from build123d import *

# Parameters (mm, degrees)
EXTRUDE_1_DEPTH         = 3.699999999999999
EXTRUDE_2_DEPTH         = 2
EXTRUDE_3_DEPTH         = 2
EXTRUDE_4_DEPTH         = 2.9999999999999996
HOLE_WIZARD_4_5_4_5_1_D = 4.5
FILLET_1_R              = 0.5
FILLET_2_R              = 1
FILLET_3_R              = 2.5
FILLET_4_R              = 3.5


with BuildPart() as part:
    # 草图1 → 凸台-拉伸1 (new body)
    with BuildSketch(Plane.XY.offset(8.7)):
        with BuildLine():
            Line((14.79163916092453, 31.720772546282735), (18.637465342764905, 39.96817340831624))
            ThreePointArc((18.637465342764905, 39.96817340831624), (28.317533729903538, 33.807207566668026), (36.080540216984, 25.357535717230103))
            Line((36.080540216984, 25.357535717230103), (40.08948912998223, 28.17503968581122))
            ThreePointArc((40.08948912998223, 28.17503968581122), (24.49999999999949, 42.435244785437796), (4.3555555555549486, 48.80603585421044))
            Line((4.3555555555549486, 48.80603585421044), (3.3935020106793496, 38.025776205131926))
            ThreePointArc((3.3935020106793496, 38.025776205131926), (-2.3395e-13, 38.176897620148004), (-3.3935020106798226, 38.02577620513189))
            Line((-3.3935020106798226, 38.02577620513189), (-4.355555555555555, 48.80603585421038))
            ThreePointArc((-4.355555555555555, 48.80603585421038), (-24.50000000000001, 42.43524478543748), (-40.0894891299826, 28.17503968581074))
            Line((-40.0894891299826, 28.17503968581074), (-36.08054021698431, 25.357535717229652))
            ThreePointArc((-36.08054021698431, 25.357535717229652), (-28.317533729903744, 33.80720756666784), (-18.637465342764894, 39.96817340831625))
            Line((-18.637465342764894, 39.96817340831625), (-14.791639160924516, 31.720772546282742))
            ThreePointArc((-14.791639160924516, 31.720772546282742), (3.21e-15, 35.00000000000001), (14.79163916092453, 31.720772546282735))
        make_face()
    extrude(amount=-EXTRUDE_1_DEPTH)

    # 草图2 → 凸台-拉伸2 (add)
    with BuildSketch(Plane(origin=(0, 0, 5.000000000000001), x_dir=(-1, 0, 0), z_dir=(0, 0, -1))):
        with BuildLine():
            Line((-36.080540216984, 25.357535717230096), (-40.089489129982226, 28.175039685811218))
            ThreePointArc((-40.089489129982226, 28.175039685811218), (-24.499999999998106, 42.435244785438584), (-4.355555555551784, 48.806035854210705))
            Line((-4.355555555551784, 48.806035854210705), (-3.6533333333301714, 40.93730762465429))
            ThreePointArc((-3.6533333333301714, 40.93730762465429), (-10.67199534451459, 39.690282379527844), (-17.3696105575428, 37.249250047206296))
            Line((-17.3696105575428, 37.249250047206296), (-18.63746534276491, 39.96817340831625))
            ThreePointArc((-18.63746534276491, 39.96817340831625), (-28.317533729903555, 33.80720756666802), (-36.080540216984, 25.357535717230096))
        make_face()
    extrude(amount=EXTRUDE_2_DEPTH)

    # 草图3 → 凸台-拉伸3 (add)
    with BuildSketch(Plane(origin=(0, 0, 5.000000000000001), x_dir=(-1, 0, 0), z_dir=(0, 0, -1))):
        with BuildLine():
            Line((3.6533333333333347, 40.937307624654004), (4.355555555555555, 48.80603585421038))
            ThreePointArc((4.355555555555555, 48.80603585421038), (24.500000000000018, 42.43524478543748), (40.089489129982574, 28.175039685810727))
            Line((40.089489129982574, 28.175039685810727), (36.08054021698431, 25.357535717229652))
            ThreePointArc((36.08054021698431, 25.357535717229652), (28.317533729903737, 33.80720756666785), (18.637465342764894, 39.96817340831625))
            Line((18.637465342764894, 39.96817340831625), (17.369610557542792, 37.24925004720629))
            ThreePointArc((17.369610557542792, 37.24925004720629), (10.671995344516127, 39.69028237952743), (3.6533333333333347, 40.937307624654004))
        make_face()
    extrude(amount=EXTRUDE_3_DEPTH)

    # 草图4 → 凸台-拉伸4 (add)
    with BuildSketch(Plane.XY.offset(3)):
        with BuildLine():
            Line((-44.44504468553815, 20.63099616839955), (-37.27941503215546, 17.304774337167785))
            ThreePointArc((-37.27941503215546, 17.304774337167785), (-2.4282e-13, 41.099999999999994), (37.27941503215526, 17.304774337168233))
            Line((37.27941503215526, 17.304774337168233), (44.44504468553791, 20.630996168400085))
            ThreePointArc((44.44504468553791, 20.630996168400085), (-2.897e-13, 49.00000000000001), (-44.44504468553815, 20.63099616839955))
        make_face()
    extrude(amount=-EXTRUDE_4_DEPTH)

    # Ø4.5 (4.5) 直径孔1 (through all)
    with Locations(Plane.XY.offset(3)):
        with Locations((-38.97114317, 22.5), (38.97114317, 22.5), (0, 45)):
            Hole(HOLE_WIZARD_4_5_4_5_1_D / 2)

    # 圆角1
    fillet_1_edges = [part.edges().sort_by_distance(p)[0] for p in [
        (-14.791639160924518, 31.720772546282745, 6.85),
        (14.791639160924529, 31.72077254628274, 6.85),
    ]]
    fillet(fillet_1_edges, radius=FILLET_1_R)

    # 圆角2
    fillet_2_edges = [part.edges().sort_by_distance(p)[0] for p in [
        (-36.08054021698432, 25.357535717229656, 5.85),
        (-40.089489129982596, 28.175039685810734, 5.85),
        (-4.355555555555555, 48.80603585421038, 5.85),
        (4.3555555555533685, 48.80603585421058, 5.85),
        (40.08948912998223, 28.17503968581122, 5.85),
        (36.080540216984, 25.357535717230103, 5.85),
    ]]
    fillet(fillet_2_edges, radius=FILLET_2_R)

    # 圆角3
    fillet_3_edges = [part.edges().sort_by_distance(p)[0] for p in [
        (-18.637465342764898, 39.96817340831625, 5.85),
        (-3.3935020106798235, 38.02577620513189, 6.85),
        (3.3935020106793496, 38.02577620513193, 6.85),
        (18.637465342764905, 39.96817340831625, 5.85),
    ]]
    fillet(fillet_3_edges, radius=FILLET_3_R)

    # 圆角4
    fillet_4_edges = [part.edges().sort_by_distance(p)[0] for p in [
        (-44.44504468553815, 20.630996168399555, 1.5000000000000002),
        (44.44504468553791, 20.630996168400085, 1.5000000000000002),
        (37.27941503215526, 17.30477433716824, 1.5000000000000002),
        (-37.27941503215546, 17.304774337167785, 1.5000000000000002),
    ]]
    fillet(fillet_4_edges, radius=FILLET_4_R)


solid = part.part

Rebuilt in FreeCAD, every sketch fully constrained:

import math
import FreeCAD as App
import Part
import Sketcher
from FreeCAD import Vector
Q = App.Units.Quantity


def edges_at(feature, points):
    """Names of the edges that pass closest to the given points."""
    edges = feature.Shape.Edges
    near = lambda p: min(range(len(edges)), key=lambda i: edges[i].distToShape(Part.Vertex(*p))[0])
    return sorted({f"Edge{near(p) + 1}" for p in points})

doc = App.newDocument("Part")
body = doc.addObject("PartDesign::Body", "Body")

# Sketch on XY plane
sketch1 = body.newObject("Sketcher::SketchObject", "Sketch")
sketch1.AttachmentSupport = (doc.getObject("XY_Plane"), [""])
sketch1.MapMode = "FlatFace"
sketch1.AttachmentOffset = App.Placement(Vector(0, 0, 8.7), App.Rotation())
sketch1.addGeometry([
    Part.LineSegment(Vector(14.791639, 31.720773, 0), Vector(18.637465, 39.968173, 0)),  # 0
    Part.ArcOfCircle(Part.Circle(Vector(0, 0, 0), Vector(0, 0, 1), 44.1), math.radians(35.099689), math.radians(65)),  # 1
    Part.LineSegment(Vector(36.08054, 25.357536, 0), Vector(40.089489, 28.17504, 0)),  # 2
    Part.ArcOfCircle(Part.Circle(Vector(0, 0, 0), Vector(0, 0, 1), 49), math.radians(35.099689), math.radians(84.900311)),  # 3
    Part.LineSegment(Vector(4.355556, 48.806036, 0), Vector(3.393502, 38.025776, 0)),  # 4
    Part.ArcOfCircle(Part.Circle(Vector(0, 0, 0), Vector(0, 0, 1), 38.176898), math.radians(84.900311), math.radians(95.099689)),  # 5
    Part.LineSegment(Vector(-3.393502, 38.025776, 0), Vector(-4.355556, 48.806036, 0)),  # 6
    Part.ArcOfCircle(Part.Circle(Vector(0, 0, 0), Vector(0, 0, 1), 49), math.radians(95.099689), math.radians(144.900311)),  # 7
    Part.LineSegment(Vector(-40.089489, 28.17504, 0), Vector(-36.08054, 25.357536, 0)),  # 8
    Part.ArcOfCircle(Part.Circle(Vector(0, 0, 0), Vector(0, 0, 1), 44.1), math.radians(115), math.radians(144.900311)),  # 9
    Part.LineSegment(Vector(-18.637465, 39.968173, 0), Vector(-14.791639, 31.720773, 0)),  # 10
    Part.ArcOfCircle(Part.Circle(Vector(0, 0, 0), Vector(0, 0, 1), 35), math.radians(65), math.radians(115)),  # 11
], False)
sketch1.addConstraint([
    Sketcher.Constraint("Coincident", 0, 2, 1, 2),
    Sketcher.Constraint("Coincident", 1, 1, 2, 1),
    Sketcher.Constraint("Coincident", 2, 2, 3, 1),
    Sketcher.Constraint("Coincident", 3, 2, 4, 1),
    Sketcher.Constraint("Coincident", 4, 2, 5, 1),
    Sketcher.Constraint("Coincident", 5, 2, 6, 1),
    Sketcher.Constraint("Coincident", 6, 2, 7, 1),
    Sketcher.Constraint("Coincident", 7, 2, 8, 1),
    Sketcher.Constraint("Coincident", 8, 2, 9, 2),
    Sketcher.Constraint("Coincident", 9, 1, 10, 1),
    Sketcher.Constraint("Coincident", 10, 2, 11, 2),
    Sketcher.Constraint("Coincident", 11, 1, 0, 1),
    Sketcher.Constraint("Coincident", 1, 3, -1, 1),
    Sketcher.Constraint("Coincident", 3, 3, -1, 1),
    Sketcher.Constraint("Coincident", 5, 3, -1, 1),
    Sketcher.Constraint("Coincident", 7, 3, -1, 1),
    Sketcher.Constraint("Coincident", 9, 3, -1, 1),
    Sketcher.Constraint("Coincident", 11, 3, -1, 1),
    Sketcher.Constraint("Equal", 3, 7),
    Sketcher.Constraint("Equal", 1, 9),
    Sketcher.Constraint("Horizontal", 4, 2, 5, 2),
    Sketcher.Constraint("Horizontal", 3, 2, 6, 2),
    Sketcher.Constraint("Horizontal", 2, 2, 7, 2),
    Sketcher.Constraint("Horizontal", 1, 1, 8, 2),
    Sketcher.Constraint("Horizontal", 0, 2, 9, 1),
    Sketcher.Constraint("Horizontal", 10, 2, 11, 1),
    Sketcher.Constraint("Radius", 3, 49.0),
    Sketcher.Constraint("Radius", 11, 35.0),
    Sketcher.Constraint("Radius", 1, 44.1),
    Sketcher.Constraint("Angle", 0, Q("65 deg")),
    Sketcher.Constraint("Radius", 5, 38.176898),
    Sketcher.Constraint("DistanceY", 1, 1, 3, 2, 23.4485),
    Sketcher.Constraint("DistanceX", 8, 2, 10, 2, 21.288901),
    Sketcher.Constraint("DistanceX", -1, 1, 2, 2, 40.089489),
    Sketcher.Constraint("DistanceX", 8, 2, -1, 1, 36.08054),
    Sketcher.Constraint("DistanceY", 4, 2, 3, 2, 10.78026),
])
pad1 = body.newObject("PartDesign::Pad", "Pad")
pad1.Profile = sketch1
pad1.Length = 3.7
pad1.Reversed = True

# Sketch on XY plane
sketch2 = body.newObject("Sketcher::SketchObject", "Sketch001")
sketch2.AttachmentSupport = (doc.getObject("XY_Plane"), [""])
sketch2.MapMode = "FlatFace"
sketch2.AttachmentOffset = App.Placement(Vector(0, 0, 5), App.Rotation())
sketch2.addGeometry([
    Part.LineSegment(Vector(40.089489, 28.17504, 0), Vector(36.08054, 25.357536, 0)),  # 0
    Part.ArcOfCircle(Part.Circle(Vector(0, 0, 0), Vector(0, 0, 1), 44.1), math.radians(35.099689), math.radians(65)),  # 1
    Part.LineSegment(Vector(18.637465, 39.968173, 0), Vector(17.369611, 37.24925, 0)),  # 2
    Part.ArcOfCircle(Part.Circle(Vector(0, 0, 0), Vector(0, 0, 1), 41.1), math.radians(65), math.radians(84.900311)),  # 3
    Part.LineSegment(Vector(3.653333, 40.937308, 0), Vector(4.355556, 48.806036, 0)),  # 4
    Part.ArcOfCircle(Part.Circle(Vector(0, 0, 0), Vector(0, 0, 1), 49), math.radians(35.099689), math.radians(84.900311)),  # 5
], False)
sketch2.addConstraint([
    Sketcher.Constraint("Coincident", 0, 2, 1, 1),
    Sketcher.Constraint("Coincident", 1, 2, 2, 1),
    Sketcher.Constraint("Coincident", 2, 2, 3, 1),
    Sketcher.Constraint("Coincident", 3, 2, 4, 1),
    Sketcher.Constraint("Coincident", 4, 2, 5, 2),
    Sketcher.Constraint("Coincident", 5, 1, 0, 1),
    Sketcher.Constraint("Coincident", 1, 3, -1, 1),
    Sketcher.Constraint("Coincident", 3, 3, -1, 1),
    Sketcher.Constraint("Coincident", 5, 3, -1, 1),
    Sketcher.Constraint("Radius", 5, 49.0),
    Sketcher.Constraint("Radius", 1, 44.1),
    Sketcher.Constraint("Radius", 3, 41.1),
    Sketcher.Constraint("Angle", 2, Q("-115 deg")),
    Sketcher.Constraint("DistanceY", 0, 2, 4, 2, 23.4485),
    Sketcher.Constraint("DistanceX", -1, 1, 0, 2, 36.08054),
    Sketcher.Constraint("DistanceX", -1, 1, 2, 2, 17.369611),
    Sketcher.Constraint("DistanceX", -1, 1, 5, 1, 40.089489),
    Sketcher.Constraint("DistanceY", 0, 2, 3, 2, 15.579772),
])
pad2 = body.newObject("PartDesign::Pad", "Pad001")
pad2.Profile = sketch2
pad2.Length = 2
pad2.Reversed = True

# Sketch on XY plane
sketch3 = body.newObject("Sketcher::SketchObject", "Sketch002")
sketch3.AttachmentSupport = (doc.getObject("XY_Plane"), [""])
sketch3.MapMode = "FlatFace"
sketch3.AttachmentOffset = App.Placement(Vector(0, 0, 5), App.Rotation())
sketch3.addGeometry([
    Part.LineSegment(Vector(-4.355556, 48.806036, 0), Vector(-3.653333, 40.937308, 0)),  # 0
    Part.ArcOfCircle(Part.Circle(Vector(0, 0, 0), Vector(0, 0, 1), 41.1), math.radians(95.099689), math.radians(115)),  # 1
    Part.LineSegment(Vector(-17.369611, 37.24925, 0), Vector(-18.637465, 39.968173, 0)),  # 2
    Part.ArcOfCircle(Part.Circle(Vector(0, 0, 0), Vector(0, 0, 1), 44.1), math.radians(115), math.radians(144.900311)),  # 3
    Part.LineSegment(Vector(-36.08054, 25.357536, 0), Vector(-40.089489, 28.17504, 0)),  # 4
    Part.ArcOfCircle(Part.Circle(Vector(0, 0, 0), Vector(0, 0, 1), 49), math.radians(95.099689), math.radians(144.900311)),  # 5
], False)
sketch3.addConstraint([
    Sketcher.Constraint("Coincident", 0, 2, 1, 1),
    Sketcher.Constraint("Coincident", 1, 2, 2, 1),
    Sketcher.Constraint("Coincident", 2, 2, 3, 1),
    Sketcher.Constraint("Coincident", 3, 2, 4, 1),
    Sketcher.Constraint("Coincident", 4, 2, 5, 2),
    Sketcher.Constraint("Coincident", 5, 1, 0, 1),
    Sketcher.Constraint("Coincident", 1, 3, -1, 1),
    Sketcher.Constraint("Coincident", 3, 3, -1, 1),
    Sketcher.Constraint("Coincident", 5, 3, -1, 1),
    Sketcher.Constraint("Radius", 5, 49.0),
    Sketcher.Constraint("Radius", 1, 41.1),
    Sketcher.Constraint("Radius", 3, 44.1),
    Sketcher.Constraint("Angle", 2, Q("115 deg")),
    Sketcher.Constraint("DistanceY", 3, 2, 5, 1, 23.4485),
    Sketcher.Constraint("DistanceX", 1, 2, -1, 1, 17.369611),
    Sketcher.Constraint("DistanceX", 3, 2, -1, 1, 36.08054),
    Sketcher.Constraint("DistanceX", 4, 2, -1, 1, 40.089489),
    Sketcher.Constraint("DistanceY", 3, 2, 0, 2, 15.579772),
])
pad3 = body.newObject("PartDesign::Pad", "Pad002")
pad3.Profile = sketch3
pad3.Length = 2
pad3.Reversed = True

# Sketch on XY plane
sketch4 = body.newObject("Sketcher::SketchObject", "Sketch003")
sketch4.AttachmentSupport = (doc.getObject("XY_Plane"), [""])
sketch4.MapMode = "FlatFace"
sketch4.AttachmentOffset = App.Placement(Vector(0, 0, 3), App.Rotation())
sketch4.addGeometry([
    Part.LineSegment(Vector(-44.445045, 20.630996, 0), Vector(-37.279415, 17.304774, 0)),
    Part.ArcOfCircle(Part.Circle(Vector(0, 0, 0), Vector(0, 0, 1), 41.1), math.radians(24.900311), math.radians(155.099689)),
    Part.LineSegment(Vector(37.279415, 17.304774, 0), Vector(44.445045, 20.630996, 0)),
    Part.ArcOfCircle(Part.Circle(Vector(0, 0, 0), Vector(0, 0, 1), 49), math.radians(24.900311), math.radians(155.099689)),
], False)
sketch4.addConstraint([
    Sketcher.Constraint("Coincident", 0, 2, 1, 2),
    Sketcher.Constraint("Coincident", 1, 1, 2, 1),
    Sketcher.Constraint("Coincident", 2, 2, 3, 1),
    Sketcher.Constraint("Coincident", 3, 2, 0, 1),
    Sketcher.Constraint("Coincident", 1, 3, -1, 1),
    Sketcher.Constraint("Coincident", 3, 3, -1, 1),
    Sketcher.Constraint("Horizontal", 0, 2, 1, 1),
    Sketcher.Constraint("Horizontal", 2, 2, 3, 2),
    Sketcher.Constraint("Radius", 3, 49.0),
    Sketcher.Constraint("Radius", 1, 41.1),
    Sketcher.Constraint("DistanceX", 0, 2, 1, 1, 74.55883),
    Sketcher.Constraint("DistanceX", 1, 1, 2, 2, 7.16563),
])
pad4 = body.newObject("PartDesign::Pad", "Pad003")
pad4.Profile = sketch4
pad4.Length = 3
pad4.Reversed = True

# Sketch on XY plane
sketch5 = body.newObject("Sketcher::SketchObject", "Sketch004")
sketch5.AttachmentSupport = (doc.getObject("XY_Plane"), [""])
sketch5.MapMode = "FlatFace"
sketch5.AttachmentOffset = App.Placement(Vector(0, 0, 3), App.Rotation())
sketch5.addGeometry([
    Part.Circle(Vector(-38.971143, 22.5, 0), Vector(0, 0, 1), 2.25),
    Part.Circle(Vector(38.971143, 22.5, 0), Vector(0, 0, 1), 2.25),
    Part.Circle(Vector(0, 45, 0), Vector(0, 0, 1), 2.25),
], False)
sketch5.addConstraint([
    Sketcher.Constraint("Equal", 0, 1),
    Sketcher.Constraint("Equal", 1, 2),
    Sketcher.Constraint("Symmetric", 0, 3, 1, 3, -2),
    Sketcher.Constraint("PointOnObject", 2, 3, -2),
    Sketcher.Constraint("Diameter", 0, 4.5),
    Sketcher.Constraint("DistanceY", -1, 1, 2, 3, 45.0),
    Sketcher.Constraint("DistanceY", -1, 1, 0, 3, 22.5),
    Sketcher.Constraint("DistanceX", 0, 3, -1, 1, 38.971143),
])
doc.recompute()
hole = body.newObject("PartDesign::Hole", "Hole")
hole.Profile = sketch5
hole.ThreadType = "None"
hole.Diameter = 4.5
hole.DepthType = "ThroughAll"
doc.recompute()

fillet = body.newObject("PartDesign::Fillet", "Fillet")
fillet.Base = (hole, edges_at(hole, [(-14.792, 31.721, 6.85), (14.792, 31.721, 6.85)]))
fillet.Radius = 0.5
doc.recompute()

fillet2 = body.newObject("PartDesign::Fillet", "Fillet001")
fillet2.Base = (fillet, edges_at(fillet, [
    (-36.081, 25.358, 5.85),
    (-40.089, 28.175, 5.85),
    (-4.356, 48.806, 5.85),
    (4.356, 48.806, 5.85),
    (40.089, 28.175, 5.85),
    (36.081, 25.358, 5.85),
]))
fillet2.Radius = 1
doc.recompute()

fillet3 = body.newObject("PartDesign::Fillet", "Fillet002")
fillet3.Base = (fillet2, edges_at(fillet2, [
    (-18.637, 39.968, 5.85),
    (-3.394, 38.026, 6.85),
    (3.394, 38.026, 6.85),
    (18.637, 39.968, 5.85),
]))
fillet3.Radius = 2.5
doc.recompute()

fillet4 = body.newObject("PartDesign::Fillet", "Fillet003")
fillet4.Base = (fillet3, edges_at(fillet3, [
    (-44.445, 20.631, 1.5),
    (44.445, 20.631, 1.5),
    (37.279, 17.305, 1.5),
    (-37.279, 17.305, 1.5),
]))
fillet4.Radius = 3.5

doc.recompute()
